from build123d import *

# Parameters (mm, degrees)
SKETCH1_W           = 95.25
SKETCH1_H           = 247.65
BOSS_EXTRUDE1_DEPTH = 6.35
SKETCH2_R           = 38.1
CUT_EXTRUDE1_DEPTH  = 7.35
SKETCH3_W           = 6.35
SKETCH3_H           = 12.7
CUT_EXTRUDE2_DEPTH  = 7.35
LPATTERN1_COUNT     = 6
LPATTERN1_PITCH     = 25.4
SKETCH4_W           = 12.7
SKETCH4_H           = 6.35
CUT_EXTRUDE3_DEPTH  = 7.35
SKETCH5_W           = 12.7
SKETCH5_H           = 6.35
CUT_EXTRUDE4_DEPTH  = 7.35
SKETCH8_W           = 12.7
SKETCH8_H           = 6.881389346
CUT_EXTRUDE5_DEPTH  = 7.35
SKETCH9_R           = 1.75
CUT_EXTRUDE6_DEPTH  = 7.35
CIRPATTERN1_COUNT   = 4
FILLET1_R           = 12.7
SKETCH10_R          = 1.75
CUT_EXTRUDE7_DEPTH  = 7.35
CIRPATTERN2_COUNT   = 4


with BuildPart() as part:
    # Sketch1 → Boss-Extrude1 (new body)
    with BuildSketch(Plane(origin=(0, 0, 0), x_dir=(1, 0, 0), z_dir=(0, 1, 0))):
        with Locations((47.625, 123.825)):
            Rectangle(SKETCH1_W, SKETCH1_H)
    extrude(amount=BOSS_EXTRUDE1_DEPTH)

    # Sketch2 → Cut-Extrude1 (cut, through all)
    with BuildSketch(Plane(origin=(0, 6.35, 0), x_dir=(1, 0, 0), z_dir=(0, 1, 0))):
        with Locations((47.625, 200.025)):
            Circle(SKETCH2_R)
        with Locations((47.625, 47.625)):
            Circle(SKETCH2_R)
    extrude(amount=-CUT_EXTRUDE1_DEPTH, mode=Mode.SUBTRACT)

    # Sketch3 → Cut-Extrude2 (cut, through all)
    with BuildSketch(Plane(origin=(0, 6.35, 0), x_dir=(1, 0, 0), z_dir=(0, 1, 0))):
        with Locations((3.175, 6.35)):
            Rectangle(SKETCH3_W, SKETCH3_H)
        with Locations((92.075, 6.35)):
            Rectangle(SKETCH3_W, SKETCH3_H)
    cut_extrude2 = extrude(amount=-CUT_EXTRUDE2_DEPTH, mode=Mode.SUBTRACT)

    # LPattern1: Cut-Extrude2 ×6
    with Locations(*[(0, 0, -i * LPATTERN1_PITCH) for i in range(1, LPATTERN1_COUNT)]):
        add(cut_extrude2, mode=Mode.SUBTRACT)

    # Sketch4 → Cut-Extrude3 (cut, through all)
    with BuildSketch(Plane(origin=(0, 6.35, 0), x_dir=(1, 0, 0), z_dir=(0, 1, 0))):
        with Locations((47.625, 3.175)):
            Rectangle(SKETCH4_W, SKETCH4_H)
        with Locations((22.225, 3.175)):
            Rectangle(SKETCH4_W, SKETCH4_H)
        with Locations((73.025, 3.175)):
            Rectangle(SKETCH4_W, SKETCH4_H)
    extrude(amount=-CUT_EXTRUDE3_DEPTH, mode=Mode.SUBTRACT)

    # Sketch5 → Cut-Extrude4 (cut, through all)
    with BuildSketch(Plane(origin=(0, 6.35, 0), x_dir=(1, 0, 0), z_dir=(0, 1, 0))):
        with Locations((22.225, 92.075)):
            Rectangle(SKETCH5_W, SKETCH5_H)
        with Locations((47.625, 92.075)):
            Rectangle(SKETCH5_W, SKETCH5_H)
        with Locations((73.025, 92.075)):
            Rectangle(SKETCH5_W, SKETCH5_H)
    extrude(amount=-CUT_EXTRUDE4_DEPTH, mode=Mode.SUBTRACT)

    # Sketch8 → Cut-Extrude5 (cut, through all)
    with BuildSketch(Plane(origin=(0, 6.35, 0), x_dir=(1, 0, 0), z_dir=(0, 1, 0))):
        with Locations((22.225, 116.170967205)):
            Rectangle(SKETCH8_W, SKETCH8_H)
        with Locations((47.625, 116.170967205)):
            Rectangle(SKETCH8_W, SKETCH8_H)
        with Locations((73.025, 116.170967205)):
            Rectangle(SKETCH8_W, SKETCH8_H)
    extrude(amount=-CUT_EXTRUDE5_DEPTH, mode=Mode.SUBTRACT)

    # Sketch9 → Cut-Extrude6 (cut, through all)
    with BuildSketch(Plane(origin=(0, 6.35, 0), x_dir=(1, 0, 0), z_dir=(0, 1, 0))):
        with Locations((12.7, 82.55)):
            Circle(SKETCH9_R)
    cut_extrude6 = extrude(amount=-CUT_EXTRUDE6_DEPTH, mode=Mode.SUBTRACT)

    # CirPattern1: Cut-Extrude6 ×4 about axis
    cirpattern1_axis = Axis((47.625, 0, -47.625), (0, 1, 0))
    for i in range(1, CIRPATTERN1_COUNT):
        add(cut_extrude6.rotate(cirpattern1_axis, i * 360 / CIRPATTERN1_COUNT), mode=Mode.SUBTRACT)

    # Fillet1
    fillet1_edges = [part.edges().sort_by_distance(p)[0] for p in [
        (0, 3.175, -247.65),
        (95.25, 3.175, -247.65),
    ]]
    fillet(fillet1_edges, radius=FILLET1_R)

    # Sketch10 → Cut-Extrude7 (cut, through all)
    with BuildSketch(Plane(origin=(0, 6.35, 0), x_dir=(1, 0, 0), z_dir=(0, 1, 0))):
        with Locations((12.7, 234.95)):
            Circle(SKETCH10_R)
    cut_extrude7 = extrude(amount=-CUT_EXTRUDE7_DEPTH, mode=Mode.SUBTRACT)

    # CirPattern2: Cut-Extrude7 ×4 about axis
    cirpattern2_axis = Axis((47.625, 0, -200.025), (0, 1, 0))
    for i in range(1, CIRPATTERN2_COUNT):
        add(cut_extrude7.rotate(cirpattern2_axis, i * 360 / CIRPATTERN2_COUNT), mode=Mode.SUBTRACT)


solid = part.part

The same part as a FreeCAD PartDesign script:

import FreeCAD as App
import Part
import Sketcher

V = App.Vector
Q = App.Units.Quantity


def edges_at(feature, points):
    """Names of the edges that pass closest to the given points."""
    edges = feature.Shape.Edges
    near = lambda p: min(range(len(edges)), key=lambda i: edges[i].distToShape(Part.Vertex(*p))[0])
    return sorted({f"Edge{near(p) + 1}" for p in points})


def add_polygon(sketch, points):
    """Adds a closed chain of lines whose ends are joined by coincident constraints."""
    first, n = sketch.GeometryCount, len(points)
    for a, b in zip(points, points[1:] + points[:1]):
        sketch.addGeometry(Part.LineSegment(App.Vector(*a, 0), App.Vector(*b, 0)), False)
    for i in range(n):
        sketch.addConstraint(Sketcher.Constraint("Coincident", first + i, 2, first + (i + 1) % n, 1))

doc = App.newDocument("Part")
body = doc.addObject("PartDesign::Body", "Body")

# Sketch on XZ plane
sketch1 = doc.addObject("Sketcher::SketchObject", "Sketch")
body.addObject(sketch1)
sketch1.AttachmentSupport = (doc.XZ_Plane, [""])
sketch1.MapMode = "FlatFace"
add_polygon(sketch1, [(0, -247.65), (0, 0), (95.25, 0), (95.25, -247.65)])  # lines 0-3
sketch1.addConstraint([
    Sketcher.Constraint("Vertical", 0),
    Sketcher.Constraint("Horizontal", 1),
    Sketcher.Constraint("Vertical", 2),
    Sketcher.Constraint("Horizontal", 3),
    Sketcher.Constraint("Coincident", 0, 2, -1, 1),
    Sketcher.Constraint("DistanceX", 1, 1, 1, 2, Q("3.75 in")),
    Sketcher.Constraint("DistanceY", 0, 1, 0, 2, Q("9.75 in")),
])
pad1 = doc.addObject("PartDesign::Pad", "Pad")
body.addObject(pad1)
pad1.Profile = sketch1
pad1.Length = Q("0.25 in")
pad1.Reversed = True

# Sketch on XZ plane
sketch2 = doc.addObject("Sketcher::SketchObject", "Sketch001")
body.addObject(sketch2)
sketch2.AttachmentSupport = (doc.XZ_Plane, [""])
sketch2.MapMode = "FlatFace"
sketch2.AttachmentOffset = App.Placement(V(0, 0, -0.25 * 25.4), App.Rotation())
sketch2.addGeometry([
    Part.Circle(V(47.625, -200.025, 0), V(0, 0, 1), 38.1),
    Part.Circle(V(47.625, -47.625, 0), V(0, 0, 1), 38.1),
], False)
sketch2.addConstraint([
    Sketcher.Constraint("Equal", 0, 1),
    Sketcher.Constraint("Vertical", 0, 3, 1, 3),
    Sketcher.Constraint("Diameter", 0, Q("3 in")),
    Sketcher.Constraint("DistanceY", 0, 3, 1, 3, Q("6 in")),
    Sketcher.Constraint("DistanceX", -1, 1, 0, 3, Q("1.875 in")),
    Sketcher.Constraint("DistanceY", 0, 3, -1, 1, Q("7.875 in")),
])
pocket1 = doc.addObject("PartDesign::Pocket", "Pocket")
body.addObject(pocket1)
pocket1.Profile = sketch2
pocket1.Type = "ThroughAll"
pocket1.Reversed = True

# Sketch on XZ plane
sketch3 = doc.addObject("Sketcher::SketchObject", "Sketch002")
body.addObject(sketch3)
sketch3.AttachmentSupport = (doc.XZ_Plane, [""])
sketch3.MapMode = "FlatFace"
sketch3.AttachmentOffset = App.Placement(V(0, 0, -0.25 * 25.4), App.Rotation())
add_polygon(sketch3, [(0, -12.7), (0, 0), (6.35, 0), (6.35, -12.7)])  # lines 0-3
add_polygon(sketch3, [(88.9, -12.7), (88.9, 0), (95.25, 0), (95.25, -12.7)])  # lines 4-7
sketch3.addConstraint([
    Sketcher.Constraint("Vertical", 0),
    Sketcher.Constraint("Horizontal", 1),
    Sketcher.Constraint("Vertical", 2),
    Sketcher.Constraint("Horizontal", 3),
    Sketcher.Constraint("Vertical", 4),
    Sketcher.Constraint("Horizontal", 5),
    Sketcher.Constraint("Vertical", 6),
    Sketcher.Constraint("Horizontal", 7),
    Sketcher.Constraint("Coincident", 0, 2, -1, 1),
    Sketcher.Constraint("PointOnObject", 4, 2, -1),
    Sketcher.Constraint("Horizontal", 3, 2, 6, 2),
    Sketcher.Constraint("Equal", 3, 5),
    Sketcher.Constraint("DistanceY", 0, 1, 0, 2, Q("0.5 in")),
    Sketcher.Constraint("DistanceX", 1, 1, 1, 2, Q("0.25 in")),
    Sketcher.Constraint("DistanceX", -1, 1, 4, 2, Q("3.5 in")),
])
pocket2 = doc.addObject("PartDesign::Pocket", "Pocket001")
body.addObject(pocket2)
pocket2.Profile = sketch3
pocket2.Type = "ThroughAll"
pocket2.Reversed = True
doc.recompute()

linearpattern = doc.addObject("PartDesign::LinearPattern", "LinearPattern")
body.addObject(linearpattern)
linearpattern.Originals = [pocket2]
linearpattern.Direction = (doc.Z_Axis, [""])
linearpattern.Mode = "offset"
linearpattern.Offset = Q("1 in")
linearpattern.Occurrences = 6
linearpattern.Reversed = True
body.Tip = linearpattern

# Sketch on XZ plane
sketch4 = doc.addObject("Sketcher::SketchObject", "Sketch003")
body.addObject(sketch4)
sketch4.AttachmentSupport = (doc.XZ_Plane, [""])
sketch4.MapMode = "FlatFace"
sketch4.AttachmentOffset = App.Placement(V(0, 0, -0.25 * 25.4), App.Rotation())
add_polygon(sketch4, [(41.275, -6.35), (41.275, 0), (53.975, 0), (53.975, -6.35)])  # lines 0-3
add_polygon(sketch4, [(15.875, -6.35), (15.875, 0), (28.575, 0), (28.575, -6.35)])  # lines 4-7
add_polygon(sketch4, [(66.675, -6.35), (66.675, 0), (79.375, 0), (79.375, -6.35)])  # lines 8-11
sketch4.addConstraint([
    Sketcher.Constraint("Vertical", 0),
    Sketcher.Constraint("Horizontal", 1),
    Sketcher.Constraint("Vertical", 2),
    Sketcher.Constraint("Horizontal", 3),
    Sketcher.Constraint("Vertical", 4),
    Sketcher.Constraint("Horizontal", 5),
    Sketcher.Constraint("Vertical", 6),
    Sketcher.Constraint("Horizontal", 7),
    Sketcher.Constraint("Vertical", 8),
    Sketcher.Constraint("Horizontal", 9),
    Sketcher.Constraint("Vertical", 10),
    Sketcher.Constraint("Horizontal", 11),
    Sketcher.Constraint("PointOnObject", 0, 2, -1),
    Sketcher.Constraint("PointOnObject", 4, 2, -1),
    Sketcher.Constraint("PointOnObject", 8, 2, -1),
    Sketcher.Constraint("Horizontal", 3, 2, 6, 2),
    Sketcher.Constraint("Horizontal", 7, 2, 10, 2),
    Sketcher.Constraint("Equal", 3, 5),
    Sketcher.Constraint("Equal", 7, 9),
    Sketcher.Constraint("DistanceX", 1, 1, 1, 2, Q("0.5 in")),
    Sketcher.Constraint("DistanceX", 4, 2, 0, 2, Q("1 in")),
    Sketcher.Constraint("DistanceX", 0, 2, 8, 2, Q("1 in")),
    Sketcher.Constraint("DistanceY", 0, 1, 0, 2, Q("0.25 in")),
    Sketcher.Constraint("DistanceX", -1, 1, 0, 2, Q("1.625 in")),
])
pocket3 = doc.addObject("PartDesign::Pocket", "Pocket002")
body.addObject(pocket3)
pocket3.Profile = sketch4
pocket3.Type = "ThroughAll"
pocket3.Reversed = True

# Sketch on XZ plane
sketch5 = doc.addObject("Sketcher::SketchObject", "Sketch004")
body.addObject(sketch5)
sketch5.AttachmentSupport = (doc.XZ_Plane, [""])
sketch5.MapMode = "FlatFace"
sketch5.AttachmentOffset = App.Placement(V(0, 0, -0.25 * 25.4), App.Rotation())
add_polygon(sketch5, [(15.875, -95.25), (15.875, -88.9), (28.575, -88.9), (28.575, -95.25)])  # lines 0-3
add_polygon(sketch5, [(41.275, -95.25), (41.275, -88.9), (53.975, -88.9), (53.975, -95.25)])  # lines 4-7
add_polygon(sketch5, [(66.675, -95.25), (66.675, -88.9), (79.375, -88.9), (79.375, -95.25)])  # lines 8-11
sketch5.addConstraint([
    Sketcher.Constraint("Vertical", 0),
    Sketcher.Constraint("Horizontal", 1),
    Sketcher.Constraint("Vertical", 2),
    Sketcher.Constraint("Horizontal", 3),
    Sketcher.Constraint("Vertical", 4),
    Sketcher.Constraint("Horizontal", 5),
    Sketcher.Constraint("Vertical", 6),
    Sketcher.Constraint("Horizontal", 7),
    Sketcher.Constraint("Vertical", 8),
    Sketcher.Constraint("Horizontal", 9),
    Sketcher.Constraint("Vertical", 10),
    Sketcher.Constraint("Horizontal", 11),
    Sketcher.Constraint("Horizontal", 1, 2, 4, 2),
    Sketcher.Constraint("Horizontal", 3, 2, 6, 2),
    Sketcher.Constraint("Horizontal", 5, 2, 8, 2),
    Sketcher.Constraint("Horizontal", 7, 2, 10, 2),
    Sketcher.Constraint("Equal", 3, 5),
    Sketcher.Constraint("Equal", 7, 9),
    Sketcher.Constraint("DistanceX", 1, 1, 1, 2, Q("0.5 in")),
    Sketcher.Constraint("DistanceX", 0, 2, 4, 2, Q("1 in")),
    Sketcher.Constraint("DistanceX", 4, 2, 8, 2, Q("1 in")),
    Sketcher.Constraint("DistanceY", 0, 1, 0, 2, Q("0.25 in")),
    Sketcher.Constraint("DistanceY", 0, 2, -1, 1, Q("3.5 in")),
    Sketcher.Constraint("DistanceX", -1, 1, 0, 2, Q("0.625 in")),
])
pocket4 = doc.addObject("PartDesign::Pocket", "Pocket003")
body.addObject(pocket4)
pocket4.Profile = sketch5
pocket4.Type = "ThroughAll"
pocket4.Reversed = True

# Sketch on XZ plane
sketch6 = doc.addObject("Sketcher::SketchObject", "Sketch005")
body.addObject(sketch6)
sketch6.AttachmentSupport = (doc.XZ_Plane, [""])
sketch6.MapMode = "FlatFace"
sketch6.AttachmentOffset = App.Placement(V(0, 0, -0.25 * 25.4), App.Rotation())
add_polygon(sketch6, [(15.875, -119.611662), (15.875, -112.730273), (28.575, -112.730273), (28.575, -119.611662)])  # lines 0-3
add_polygon(sketch6, [(41.275, -119.611662), (41.275, -112.730273), (53.975, -112.730273), (53.975, -119.611662)])  # lines 4-7
add_polygon(sketch6, [(66.675, -119.611662), (66.675, -112.730273), (79.375, -112.730273), (79.375, -119.611662)])  # lines 8-11
sketch6.addConstraint([
    Sketcher.Constraint("Vertical", 0),
    Sketcher.Constraint("Horizontal", 1),
    Sketcher.Constraint("Vertical", 2),
    Sketcher.Constraint("Horizontal", 3),
    Sketcher.Constraint("Vertical", 4),
    Sketcher.Constraint("Horizontal", 5),
    Sketcher.Constraint("Vertical", 6),
    Sketcher.Constraint("Horizontal", 7),
    Sketcher.Constraint("Vertical", 8),
    Sketcher.Constraint("Horizontal", 9),
    Sketcher.Constraint("Vertical", 10),
    Sketcher.Constraint("Horizontal", 11),
    Sketcher.Constraint("Horizontal", 1, 2, 4, 2),
    Sketcher.Constraint("Horizontal", 3, 2, 6, 2),
    Sketcher.Constraint("Horizontal", 5, 2, 8, 2),
    Sketcher.Constraint("Horizontal", 7, 2, 10, 2),
    Sketcher.Constraint("Equal", 3, 5),
    Sketcher.Constraint("Equal", 7, 9),
    Sketcher.Constraint("DistanceX", 1, 1, 1, 2, Q("0.5 in")),
    Sketcher.Constraint("DistanceX", 0, 2, 4, 2, Q("1 in")),
    Sketcher.Constraint("DistanceX", 4, 2, 8, 2, Q("1 in")),
    Sketcher.Constraint("DistanceX", -1, 1, 0, 2, Q("0.625 in")),
    Sketcher.Constraint("DistanceY", 0, 1, 0, 2, Q("6.881389 mm")),
    Sketcher.Constraint("DistanceY", 2, 2, -1, 1, Q("119.611662 mm")),
])
pocket5 = doc.addObject("PartDesign::Pocket", "Pocket004")
body.addObject(pocket5)
pocket5.Profile = sketch6
pocket5.Type = "ThroughAll"
pocket5.Reversed = True

# Sketch on XZ plane
sketch7 = doc.addObject("Sketcher::SketchObject", "Sketch006")
body.addObject(sketch7)
sketch7.AttachmentSupport = (doc.XZ_Plane, [""])
sketch7.MapMode = "FlatFace"
sketch7.AttachmentOffset = App.Placement(V(0, 0, -0.25 * 25.4), App.Rotation())
sketch7.addGeometry(Part.Circle(V(12.7, -82.55, 0), V(0, 0, 1), 1.75), False)
sketch7.addConstraint([
    Sketcher.Constraint("DistanceX", -1, 1, 0, 3, Q("0.5 in")),
    Sketcher.Constraint("Diameter", 0, Q("3.5 mm")),
    Sketcher.Constraint("DistanceY", 0, 3, -1, 1, Q("3.25 in")),
])
pocket6 = doc.addObject("PartDesign::Pocket", "Pocket005")
body.addObject(pocket6)
pocket6.Profile = sketch7
pocket6.Type = "ThroughAll"
pocket6.Reversed = True
doc.recompute()

datumline = doc.addObject("PartDesign::Line", "DatumLine")
body.addObject(datumline)
datumline.Placement = App.Placement(V(47.625, 0, -47.625), App.Rotation(V(0, 0, 1), V(0, 1, 0)))
polarpattern = doc.addObject("PartDesign::PolarPattern", "PolarPattern")
body.addObject(polarpattern)
polarpattern.Originals = [pocket6]
polarpattern.Axis = (datumline, [""])
polarpattern.Angle = 360
polarpattern.Occurrences = 4
body.Tip = polarpattern
doc.recompute()

fillet = doc.addObject("PartDesign::Fillet", "Fillet")
body.addObject(fillet)
fillet.Base = (polarpattern, edges_at(polarpattern, [(0, 3.175, -247.65), (95.25, 3.175, -247.65)]))
fillet.Radius = Q("0.5 in")

# Sketch on XZ plane
sketch8 = doc.addObject("Sketcher::SketchObject", "Sketch007")
body.addObject(sketch8)
sketch8.AttachmentSupport = (doc.XZ_Plane, [""])
sketch8.MapMode = "FlatFace"
sketch8.AttachmentOffset = App.Placement(V(0, 0, -0.25 * 25.4), App.Rotation())
sketch8.addGeometry(Part.Circle(V(12.7, -234.95, 0), V(0, 0, 1), 1.75), False)
sketch8.addConstraint([
    Sketcher.Constraint("DistanceX", -1, 1, 0, 3, Q("0.5 in")),
    Sketcher.Constraint("Diameter", 0, Q("3.5 mm")),
    Sketcher.Constraint("DistanceY", 0, 3, -1, 1, Q("9.25 in")),
])
pocket7 = doc.addObject("PartDesign::Pocket", "Pocket006")
body.addObject(pocket7)
pocket7.Profile = sketch8
pocket7.Type = "ThroughAll"
pocket7.Reversed = True
doc.recompute()

datumline2 = doc.addObject("PartDesign::Line", "DatumLine001")
body.addObject(datumline2)
datumline2.Placement = App.Placement(V(47.625, 0, -200.025), App.Rotation(V(0, 0, 1), V(0, 1, 0)))
polarpattern2 = doc.addObject("PartDesign::PolarPattern", "PolarPattern001")
body.addObject(polarpattern2)
polarpattern2.Originals = [pocket7]
polarpattern2.Axis = (datumline2, [""])
polarpattern2.Angle = 360
polarpattern2.Occurrences = 4
body.Tip = polarpattern2

doc.recompute()
